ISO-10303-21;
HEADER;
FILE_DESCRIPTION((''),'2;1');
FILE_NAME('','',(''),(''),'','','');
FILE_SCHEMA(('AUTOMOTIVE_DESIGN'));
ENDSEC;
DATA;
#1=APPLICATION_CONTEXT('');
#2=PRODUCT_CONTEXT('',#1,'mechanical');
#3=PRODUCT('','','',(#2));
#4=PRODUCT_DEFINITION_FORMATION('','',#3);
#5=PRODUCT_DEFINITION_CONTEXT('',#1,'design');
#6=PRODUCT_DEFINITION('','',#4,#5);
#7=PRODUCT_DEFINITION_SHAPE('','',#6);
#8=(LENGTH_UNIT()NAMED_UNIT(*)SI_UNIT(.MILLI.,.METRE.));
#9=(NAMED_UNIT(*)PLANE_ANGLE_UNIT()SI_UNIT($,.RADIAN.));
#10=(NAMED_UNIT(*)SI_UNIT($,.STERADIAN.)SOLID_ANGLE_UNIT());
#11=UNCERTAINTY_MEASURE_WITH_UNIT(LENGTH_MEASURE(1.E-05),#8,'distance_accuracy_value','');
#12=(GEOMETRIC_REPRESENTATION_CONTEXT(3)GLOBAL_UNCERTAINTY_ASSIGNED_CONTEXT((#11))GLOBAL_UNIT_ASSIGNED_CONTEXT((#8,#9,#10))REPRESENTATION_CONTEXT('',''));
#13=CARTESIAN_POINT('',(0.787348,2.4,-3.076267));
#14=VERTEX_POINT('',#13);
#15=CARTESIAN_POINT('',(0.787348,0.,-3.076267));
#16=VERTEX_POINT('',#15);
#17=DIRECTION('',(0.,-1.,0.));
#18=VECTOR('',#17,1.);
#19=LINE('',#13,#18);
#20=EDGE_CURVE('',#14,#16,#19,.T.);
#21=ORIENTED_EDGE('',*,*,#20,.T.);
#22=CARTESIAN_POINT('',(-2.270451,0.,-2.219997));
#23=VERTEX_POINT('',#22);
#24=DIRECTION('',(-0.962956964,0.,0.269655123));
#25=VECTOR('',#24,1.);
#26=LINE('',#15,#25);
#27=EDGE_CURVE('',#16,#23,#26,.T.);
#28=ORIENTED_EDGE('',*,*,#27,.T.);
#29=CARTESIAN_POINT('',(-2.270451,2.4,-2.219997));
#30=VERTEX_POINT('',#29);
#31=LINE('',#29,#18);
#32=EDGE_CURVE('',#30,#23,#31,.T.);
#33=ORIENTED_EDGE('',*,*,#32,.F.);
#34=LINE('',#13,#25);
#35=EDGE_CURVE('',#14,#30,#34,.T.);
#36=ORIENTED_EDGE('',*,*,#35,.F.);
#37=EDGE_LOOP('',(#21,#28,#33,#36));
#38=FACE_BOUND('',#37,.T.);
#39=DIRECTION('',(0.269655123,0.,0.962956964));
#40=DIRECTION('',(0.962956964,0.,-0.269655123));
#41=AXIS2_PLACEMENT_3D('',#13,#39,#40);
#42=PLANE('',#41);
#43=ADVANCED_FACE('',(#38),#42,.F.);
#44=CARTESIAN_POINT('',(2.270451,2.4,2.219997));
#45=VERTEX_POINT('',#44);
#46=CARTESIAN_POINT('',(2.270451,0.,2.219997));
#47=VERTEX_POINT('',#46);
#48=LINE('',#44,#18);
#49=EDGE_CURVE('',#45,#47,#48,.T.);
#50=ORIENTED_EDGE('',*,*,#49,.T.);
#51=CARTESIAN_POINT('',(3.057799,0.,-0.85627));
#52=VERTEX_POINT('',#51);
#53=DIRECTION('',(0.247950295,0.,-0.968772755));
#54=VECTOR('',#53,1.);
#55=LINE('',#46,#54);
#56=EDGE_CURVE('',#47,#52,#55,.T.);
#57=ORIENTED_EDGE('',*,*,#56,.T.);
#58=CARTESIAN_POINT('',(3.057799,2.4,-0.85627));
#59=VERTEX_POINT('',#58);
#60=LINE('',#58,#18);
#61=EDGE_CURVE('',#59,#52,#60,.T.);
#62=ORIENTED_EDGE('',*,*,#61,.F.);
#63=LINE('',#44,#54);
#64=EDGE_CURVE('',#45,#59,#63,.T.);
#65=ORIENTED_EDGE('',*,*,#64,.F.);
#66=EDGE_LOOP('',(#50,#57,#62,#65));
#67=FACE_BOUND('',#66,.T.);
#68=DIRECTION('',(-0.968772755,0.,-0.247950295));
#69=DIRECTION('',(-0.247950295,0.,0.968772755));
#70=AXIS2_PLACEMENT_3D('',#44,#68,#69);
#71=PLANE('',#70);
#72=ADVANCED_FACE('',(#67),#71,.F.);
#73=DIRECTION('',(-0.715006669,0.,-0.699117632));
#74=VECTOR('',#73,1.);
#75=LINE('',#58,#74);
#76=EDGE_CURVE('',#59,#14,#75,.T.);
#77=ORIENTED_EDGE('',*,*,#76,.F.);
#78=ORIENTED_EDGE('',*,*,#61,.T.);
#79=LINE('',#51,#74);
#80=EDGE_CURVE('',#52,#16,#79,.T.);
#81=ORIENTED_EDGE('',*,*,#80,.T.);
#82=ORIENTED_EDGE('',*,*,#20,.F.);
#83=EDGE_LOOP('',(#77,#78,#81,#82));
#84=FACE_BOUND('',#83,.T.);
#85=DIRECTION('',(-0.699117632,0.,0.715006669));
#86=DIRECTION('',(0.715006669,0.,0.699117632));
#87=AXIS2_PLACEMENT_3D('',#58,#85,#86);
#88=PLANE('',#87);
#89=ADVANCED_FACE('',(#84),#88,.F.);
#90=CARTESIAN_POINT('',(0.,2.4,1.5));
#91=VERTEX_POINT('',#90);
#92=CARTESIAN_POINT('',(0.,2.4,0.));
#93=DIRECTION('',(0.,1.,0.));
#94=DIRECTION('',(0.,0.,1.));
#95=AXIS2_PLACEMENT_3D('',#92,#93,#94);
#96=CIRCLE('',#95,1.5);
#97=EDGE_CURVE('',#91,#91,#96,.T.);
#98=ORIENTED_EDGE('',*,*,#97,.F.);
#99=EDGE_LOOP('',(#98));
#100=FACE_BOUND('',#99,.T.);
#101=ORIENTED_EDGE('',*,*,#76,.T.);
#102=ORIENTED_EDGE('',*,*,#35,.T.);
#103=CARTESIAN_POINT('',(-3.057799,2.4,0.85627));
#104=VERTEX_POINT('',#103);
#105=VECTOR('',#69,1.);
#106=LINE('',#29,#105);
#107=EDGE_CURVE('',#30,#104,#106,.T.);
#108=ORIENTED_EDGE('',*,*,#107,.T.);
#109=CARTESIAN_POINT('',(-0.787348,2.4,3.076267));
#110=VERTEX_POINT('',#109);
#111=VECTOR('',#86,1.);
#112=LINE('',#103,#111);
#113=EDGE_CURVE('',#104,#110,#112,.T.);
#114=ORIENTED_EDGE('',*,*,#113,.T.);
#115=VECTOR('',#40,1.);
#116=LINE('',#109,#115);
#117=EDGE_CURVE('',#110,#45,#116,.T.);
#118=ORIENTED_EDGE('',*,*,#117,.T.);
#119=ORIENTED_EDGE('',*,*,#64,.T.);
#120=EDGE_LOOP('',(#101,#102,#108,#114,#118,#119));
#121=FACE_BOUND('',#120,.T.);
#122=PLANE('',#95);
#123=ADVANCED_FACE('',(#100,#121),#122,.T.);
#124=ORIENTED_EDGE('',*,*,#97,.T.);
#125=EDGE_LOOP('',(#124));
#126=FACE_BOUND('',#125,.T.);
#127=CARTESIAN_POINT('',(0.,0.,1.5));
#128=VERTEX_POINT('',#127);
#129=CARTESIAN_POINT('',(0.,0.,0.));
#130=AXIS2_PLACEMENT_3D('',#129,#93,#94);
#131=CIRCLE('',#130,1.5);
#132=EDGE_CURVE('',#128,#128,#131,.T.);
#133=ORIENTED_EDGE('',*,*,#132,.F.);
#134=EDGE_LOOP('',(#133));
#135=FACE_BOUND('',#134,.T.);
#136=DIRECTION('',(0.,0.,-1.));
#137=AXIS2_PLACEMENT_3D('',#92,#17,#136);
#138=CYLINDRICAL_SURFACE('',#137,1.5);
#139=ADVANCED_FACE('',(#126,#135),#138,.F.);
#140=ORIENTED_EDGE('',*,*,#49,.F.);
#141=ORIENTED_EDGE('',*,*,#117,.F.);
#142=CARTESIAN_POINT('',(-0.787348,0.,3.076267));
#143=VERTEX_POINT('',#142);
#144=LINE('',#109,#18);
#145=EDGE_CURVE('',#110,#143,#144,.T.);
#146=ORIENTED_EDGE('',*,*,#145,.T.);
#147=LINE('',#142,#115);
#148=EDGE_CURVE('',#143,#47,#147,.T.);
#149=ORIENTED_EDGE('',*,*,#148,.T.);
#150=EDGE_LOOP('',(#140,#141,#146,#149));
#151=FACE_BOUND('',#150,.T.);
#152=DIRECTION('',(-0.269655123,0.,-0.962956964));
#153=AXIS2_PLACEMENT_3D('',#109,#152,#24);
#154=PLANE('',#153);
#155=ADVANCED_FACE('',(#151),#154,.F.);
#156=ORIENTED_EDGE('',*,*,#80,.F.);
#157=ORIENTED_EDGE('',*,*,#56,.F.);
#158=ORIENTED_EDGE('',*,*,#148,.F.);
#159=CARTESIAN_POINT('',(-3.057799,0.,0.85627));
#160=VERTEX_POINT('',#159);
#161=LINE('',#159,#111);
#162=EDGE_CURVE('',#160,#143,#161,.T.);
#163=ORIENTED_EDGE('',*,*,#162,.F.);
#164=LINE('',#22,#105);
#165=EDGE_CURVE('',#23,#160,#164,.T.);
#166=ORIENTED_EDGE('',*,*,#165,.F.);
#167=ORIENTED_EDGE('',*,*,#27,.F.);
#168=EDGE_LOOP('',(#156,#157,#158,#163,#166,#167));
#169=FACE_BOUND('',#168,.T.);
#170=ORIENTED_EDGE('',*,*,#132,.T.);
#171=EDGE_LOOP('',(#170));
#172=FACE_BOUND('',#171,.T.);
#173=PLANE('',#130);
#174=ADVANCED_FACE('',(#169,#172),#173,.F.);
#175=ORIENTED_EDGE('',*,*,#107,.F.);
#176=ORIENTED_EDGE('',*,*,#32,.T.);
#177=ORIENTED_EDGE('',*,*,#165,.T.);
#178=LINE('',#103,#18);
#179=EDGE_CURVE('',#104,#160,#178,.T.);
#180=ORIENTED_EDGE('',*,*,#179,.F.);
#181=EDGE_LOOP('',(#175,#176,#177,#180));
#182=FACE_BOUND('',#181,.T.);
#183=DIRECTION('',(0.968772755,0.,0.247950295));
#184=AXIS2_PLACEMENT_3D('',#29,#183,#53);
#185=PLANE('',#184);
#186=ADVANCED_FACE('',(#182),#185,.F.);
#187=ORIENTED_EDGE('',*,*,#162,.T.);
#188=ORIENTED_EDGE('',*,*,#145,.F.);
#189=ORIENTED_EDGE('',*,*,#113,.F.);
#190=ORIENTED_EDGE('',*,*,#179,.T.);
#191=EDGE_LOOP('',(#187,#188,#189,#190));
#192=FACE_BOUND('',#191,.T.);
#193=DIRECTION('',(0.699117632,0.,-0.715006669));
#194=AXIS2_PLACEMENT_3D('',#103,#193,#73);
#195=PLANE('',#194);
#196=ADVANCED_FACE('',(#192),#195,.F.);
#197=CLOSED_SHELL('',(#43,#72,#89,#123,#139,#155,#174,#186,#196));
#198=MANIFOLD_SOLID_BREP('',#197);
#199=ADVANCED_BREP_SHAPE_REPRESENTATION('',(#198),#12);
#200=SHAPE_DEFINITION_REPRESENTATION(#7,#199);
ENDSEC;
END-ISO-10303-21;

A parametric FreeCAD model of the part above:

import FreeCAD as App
import Part
import Sketcher

V = App.Vector


def add_polygon(sketch, points):
    """Adds a closed chain of lines whose ends are joined by coincident constraints."""
    first, n = sketch.GeometryCount, len(points)
    for a, b in zip(points, points[1:] + points[:1]):
        sketch.addGeometry(Part.LineSegment(App.Vector(*a, 0), App.Vector(*b, 0)), False)
    for i in range(n):
        sketch.addConstraint(Sketcher.Constraint("Coincident", first + i, 2, first + (i + 1) % n, 1))

doc = App.newDocument("Part")
params = doc.addObject("Spreadsheet::Sheet", "Params")
for row, (alias, value) in enumerate([
    ("sketch1_diameter", "3 mm"),
    ("pad1_length", "2.4 mm"),
], start=1):
    params.set(f"A{row}", alias)
    params.set(f"B{row}", "=" + value)
    params.setAlias(f"B{row}", alias)

body = doc.addObject("PartDesign::Body", "Body")

# Sketch on XZ plane
sketch1 = body.newObject("Sketcher::SketchObject", "Sketch")
sketch1.AttachmentSupport = (doc.getObject("XZ_Plane"), [""])
sketch1.MapMode = "FlatFace"
add_polygon(sketch1, [(2.3, 2.2), (3.1, -0.9), (0.8, -3.1), (-2.3, -2.2), (-3.1, 0.9), (-0.8, 3.1)])  # lines 0-5
sketch1.addGeometry(Part.Circle(V(0, 0, 0), V(0, 0, 1), 1.5), False)  # 6
sketch1.addConstraint([
    Sketcher.Constraint("Coincident", 6, 3, -1, 1),
    Sketcher.Constraint("Symmetric", 0, 2, 3, 2, -1, 1),
    Sketcher.Constraint("Symmetric", 1, 2, 4, 2, -1, 1),
    Sketcher.Constraint("Symmetric", 2, 2, 5, 2, -1, 1),
    Sketcher.Constraint("Equal", 0, 1),
    Sketcher.Constraint("Equal", 1, 2),
    Sketcher.Constraint("Diameter", 6, 3.0),
    Sketcher.Constraint("DistanceX", -1, 1, 0, 2, 3.057799),
    Sketcher.Constraint("DistanceX", 2, 2, 1, 2, 3.057799),
    Sketcher.Constraint("DistanceY", 0, 2, -1, 1, 0.85627),
    Sketcher.Constraint("DistanceX", 2, 2, -1, 1, 2.270451),
])
sketch1.setExpression("Constraints[12]", "Params.sketch1_diameter")
pad1 = body.newObject("PartDesign::Pad", "Pad")
pad1.Profile = sketch1
pad1.setExpression("Length", "Params.pad1_length")
pad1.Reversed = True

doc.recompute()
